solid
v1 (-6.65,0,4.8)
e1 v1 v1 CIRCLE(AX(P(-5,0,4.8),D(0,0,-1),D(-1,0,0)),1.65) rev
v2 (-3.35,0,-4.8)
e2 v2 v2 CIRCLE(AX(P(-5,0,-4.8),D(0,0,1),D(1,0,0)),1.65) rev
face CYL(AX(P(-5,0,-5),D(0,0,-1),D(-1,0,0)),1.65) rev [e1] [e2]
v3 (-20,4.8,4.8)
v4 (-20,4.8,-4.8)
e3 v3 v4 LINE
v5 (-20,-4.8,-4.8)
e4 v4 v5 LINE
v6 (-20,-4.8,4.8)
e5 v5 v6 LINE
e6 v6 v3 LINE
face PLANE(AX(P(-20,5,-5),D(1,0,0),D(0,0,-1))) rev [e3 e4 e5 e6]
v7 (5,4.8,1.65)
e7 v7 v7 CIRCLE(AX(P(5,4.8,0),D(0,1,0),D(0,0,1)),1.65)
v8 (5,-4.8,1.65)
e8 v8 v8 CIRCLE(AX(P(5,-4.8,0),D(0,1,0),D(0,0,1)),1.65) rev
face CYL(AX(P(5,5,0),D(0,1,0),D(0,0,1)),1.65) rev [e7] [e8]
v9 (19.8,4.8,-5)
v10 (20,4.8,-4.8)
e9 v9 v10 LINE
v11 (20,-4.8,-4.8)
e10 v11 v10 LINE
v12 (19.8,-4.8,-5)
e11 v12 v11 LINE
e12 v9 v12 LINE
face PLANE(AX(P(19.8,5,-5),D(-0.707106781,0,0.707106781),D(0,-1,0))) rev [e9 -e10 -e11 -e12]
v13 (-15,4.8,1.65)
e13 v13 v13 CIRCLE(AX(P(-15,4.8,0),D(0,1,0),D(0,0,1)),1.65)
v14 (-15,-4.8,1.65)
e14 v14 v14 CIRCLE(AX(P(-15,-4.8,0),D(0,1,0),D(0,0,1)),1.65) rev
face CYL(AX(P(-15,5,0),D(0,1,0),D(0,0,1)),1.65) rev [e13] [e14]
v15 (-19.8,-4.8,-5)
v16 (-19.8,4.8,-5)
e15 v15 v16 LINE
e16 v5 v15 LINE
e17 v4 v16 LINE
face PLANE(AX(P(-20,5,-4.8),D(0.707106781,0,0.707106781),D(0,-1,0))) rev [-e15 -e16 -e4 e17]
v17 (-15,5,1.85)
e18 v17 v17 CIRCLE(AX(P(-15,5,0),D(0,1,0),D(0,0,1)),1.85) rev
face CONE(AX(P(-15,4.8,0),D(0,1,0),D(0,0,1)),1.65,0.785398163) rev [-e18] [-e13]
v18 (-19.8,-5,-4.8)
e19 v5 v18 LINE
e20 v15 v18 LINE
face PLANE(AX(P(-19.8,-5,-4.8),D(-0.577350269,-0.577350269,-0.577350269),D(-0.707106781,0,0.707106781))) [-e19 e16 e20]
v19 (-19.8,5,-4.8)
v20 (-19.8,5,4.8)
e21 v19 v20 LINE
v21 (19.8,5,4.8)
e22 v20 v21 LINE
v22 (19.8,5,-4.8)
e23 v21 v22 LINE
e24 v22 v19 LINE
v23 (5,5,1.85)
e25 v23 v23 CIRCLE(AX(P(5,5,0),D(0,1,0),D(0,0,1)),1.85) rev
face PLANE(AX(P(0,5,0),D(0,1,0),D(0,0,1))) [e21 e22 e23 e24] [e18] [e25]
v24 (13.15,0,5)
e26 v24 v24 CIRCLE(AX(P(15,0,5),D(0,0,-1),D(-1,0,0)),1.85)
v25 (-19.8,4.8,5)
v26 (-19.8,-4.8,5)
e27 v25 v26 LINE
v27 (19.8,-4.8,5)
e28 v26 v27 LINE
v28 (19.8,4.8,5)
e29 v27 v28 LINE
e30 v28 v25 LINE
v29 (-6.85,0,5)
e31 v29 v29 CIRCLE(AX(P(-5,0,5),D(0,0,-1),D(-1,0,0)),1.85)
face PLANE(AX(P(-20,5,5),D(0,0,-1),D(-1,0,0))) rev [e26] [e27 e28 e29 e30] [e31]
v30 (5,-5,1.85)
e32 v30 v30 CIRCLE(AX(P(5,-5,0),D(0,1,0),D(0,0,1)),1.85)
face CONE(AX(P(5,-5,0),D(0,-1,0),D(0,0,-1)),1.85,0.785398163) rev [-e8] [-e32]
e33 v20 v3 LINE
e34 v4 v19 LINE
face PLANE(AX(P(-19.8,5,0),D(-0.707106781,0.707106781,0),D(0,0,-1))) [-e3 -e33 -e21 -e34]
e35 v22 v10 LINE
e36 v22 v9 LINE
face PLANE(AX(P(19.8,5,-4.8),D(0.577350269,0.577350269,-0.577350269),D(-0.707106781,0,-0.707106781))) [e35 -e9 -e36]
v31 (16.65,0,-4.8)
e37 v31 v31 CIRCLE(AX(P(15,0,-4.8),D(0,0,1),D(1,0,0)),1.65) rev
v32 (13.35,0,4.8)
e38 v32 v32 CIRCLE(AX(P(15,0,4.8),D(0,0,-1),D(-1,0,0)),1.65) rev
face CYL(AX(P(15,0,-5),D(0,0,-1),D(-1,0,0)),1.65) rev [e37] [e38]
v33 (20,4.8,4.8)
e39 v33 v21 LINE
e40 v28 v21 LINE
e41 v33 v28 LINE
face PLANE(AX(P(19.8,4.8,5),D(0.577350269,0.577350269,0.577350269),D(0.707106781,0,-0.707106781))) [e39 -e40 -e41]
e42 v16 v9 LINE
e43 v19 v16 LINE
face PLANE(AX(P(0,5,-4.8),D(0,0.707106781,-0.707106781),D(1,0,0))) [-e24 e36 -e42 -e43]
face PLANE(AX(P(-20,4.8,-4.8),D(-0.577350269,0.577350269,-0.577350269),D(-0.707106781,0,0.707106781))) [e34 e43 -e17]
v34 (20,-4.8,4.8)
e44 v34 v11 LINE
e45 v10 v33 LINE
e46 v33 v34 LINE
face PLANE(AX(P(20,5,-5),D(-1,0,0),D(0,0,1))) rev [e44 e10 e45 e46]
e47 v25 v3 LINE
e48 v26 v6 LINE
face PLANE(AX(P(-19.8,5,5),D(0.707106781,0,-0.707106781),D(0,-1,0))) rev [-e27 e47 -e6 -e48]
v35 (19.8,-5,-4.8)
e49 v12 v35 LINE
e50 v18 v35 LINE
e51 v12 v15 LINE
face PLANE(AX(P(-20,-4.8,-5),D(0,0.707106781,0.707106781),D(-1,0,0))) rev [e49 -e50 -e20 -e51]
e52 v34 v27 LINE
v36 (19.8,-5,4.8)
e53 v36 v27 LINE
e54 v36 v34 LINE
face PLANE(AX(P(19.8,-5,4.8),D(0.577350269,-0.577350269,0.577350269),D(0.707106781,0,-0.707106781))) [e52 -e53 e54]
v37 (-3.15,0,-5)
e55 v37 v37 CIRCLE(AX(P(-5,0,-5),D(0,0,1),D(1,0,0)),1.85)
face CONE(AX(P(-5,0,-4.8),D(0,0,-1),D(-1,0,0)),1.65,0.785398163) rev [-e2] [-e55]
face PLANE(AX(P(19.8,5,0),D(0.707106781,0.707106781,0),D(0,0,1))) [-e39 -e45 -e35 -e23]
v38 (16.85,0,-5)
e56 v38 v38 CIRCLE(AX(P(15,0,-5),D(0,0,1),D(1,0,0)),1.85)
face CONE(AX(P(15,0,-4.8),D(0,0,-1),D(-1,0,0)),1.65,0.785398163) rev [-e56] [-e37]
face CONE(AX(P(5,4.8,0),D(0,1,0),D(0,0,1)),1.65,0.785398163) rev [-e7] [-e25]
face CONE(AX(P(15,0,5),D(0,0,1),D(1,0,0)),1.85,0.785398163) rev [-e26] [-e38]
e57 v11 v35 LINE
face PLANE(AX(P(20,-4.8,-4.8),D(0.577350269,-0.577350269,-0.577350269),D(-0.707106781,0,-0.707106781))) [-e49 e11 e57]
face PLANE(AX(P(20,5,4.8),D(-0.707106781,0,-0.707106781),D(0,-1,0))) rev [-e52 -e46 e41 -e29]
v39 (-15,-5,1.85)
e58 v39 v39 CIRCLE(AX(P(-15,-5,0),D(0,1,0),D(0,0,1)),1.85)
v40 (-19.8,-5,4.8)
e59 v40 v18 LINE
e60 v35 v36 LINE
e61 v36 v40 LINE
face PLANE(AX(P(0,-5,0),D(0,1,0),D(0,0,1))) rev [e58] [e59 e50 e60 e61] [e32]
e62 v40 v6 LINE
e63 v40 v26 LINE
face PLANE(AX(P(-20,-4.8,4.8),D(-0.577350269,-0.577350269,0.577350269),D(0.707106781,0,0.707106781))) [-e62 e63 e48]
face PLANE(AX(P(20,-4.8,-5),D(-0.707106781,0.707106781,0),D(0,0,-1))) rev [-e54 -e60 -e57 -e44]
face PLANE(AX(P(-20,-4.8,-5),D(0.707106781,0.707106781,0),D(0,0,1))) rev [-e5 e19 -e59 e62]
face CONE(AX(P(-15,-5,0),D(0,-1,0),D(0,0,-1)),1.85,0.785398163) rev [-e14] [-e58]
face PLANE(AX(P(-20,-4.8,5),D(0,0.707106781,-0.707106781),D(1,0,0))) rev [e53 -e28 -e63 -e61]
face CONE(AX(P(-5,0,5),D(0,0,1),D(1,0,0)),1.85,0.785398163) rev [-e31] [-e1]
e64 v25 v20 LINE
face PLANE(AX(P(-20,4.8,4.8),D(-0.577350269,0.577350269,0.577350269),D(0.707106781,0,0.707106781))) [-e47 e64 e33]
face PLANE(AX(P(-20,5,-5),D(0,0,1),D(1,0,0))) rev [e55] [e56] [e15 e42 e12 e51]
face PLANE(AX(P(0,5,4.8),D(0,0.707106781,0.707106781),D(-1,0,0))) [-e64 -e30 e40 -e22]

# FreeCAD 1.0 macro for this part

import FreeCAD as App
import Part
import Sketcher

V = App.Vector


def add_polygon(sketch, points):
    """Adds a closed chain of lines whose ends are joined by coincident constraints."""
    first, n = sketch.GeometryCount, len(points)
    for a, b in zip(points, points[1:] + points[:1]):
        sketch.addGeometry(Part.LineSegment(App.Vector(*a, 0), App.Vector(*b, 0)), False)
    for i in range(n):
        sketch.addConstraint(Sketcher.Constraint("Coincident", first + i, 2, first + (i + 1) % n, 1))

doc = App.newDocument("Part")
body = doc.addObject("PartDesign::Body", "Body")

sketch1 = doc.addObject("Sketcher::SketchObject", "Sketch")
body.addObject(sketch1)
sketch1.AttachmentSupport = (doc.XZ_Plane, [""])
sketch1.MapMode = "FlatFace"
add_polygon(sketch1, [(-20, -5), (-20, 5), (20, 5), (20, -5)])
sketch1.addConstraint([
    Sketcher.Constraint("Vertical", 0),
    Sketcher.Constraint("Horizontal", 1),
    Sketcher.Constraint("Vertical", 2),
    Sketcher.Constraint("Horizontal", 3),
    Sketcher.Constraint("Symmetric", 0, 2, 2, 2, -1, 1),
    Sketcher.Constraint("DistanceX", 1, 1, 1, 2, 40.0),
    Sketcher.Constraint("DistanceY", 0, 1, 0, 2, 10.0),
])
pad1 = doc.addObject("PartDesign::Pad", "Pad")
body.addObject(pad1)
pad1.Profile = sketch1
pad1.Length = 10
pad1.Midplane = True

sketch2 = doc.addObject("Sketcher::SketchObject", "Sketch001")
body.addObject(sketch2)
sketch2.AttachmentSupport = (doc.XZ_Plane, [""])
sketch2.MapMode = "FlatFace"
sketch2.AttachmentOffset = App.Placement(V(0, 0, -5), App.Rotation())
sketch2.addGeometry([
    Part.Circle(V(-15, 0, 0), V(0, 0, 1), 1.6),
    Part.Circle(V(5, 0, 0), V(0, 0, 1), 1.6),
], False)
sketch2.addConstraint([
    Sketcher.Constraint("Equal", 0, 1),
    Sketcher.Constraint("PointOnObject", 0, 3, -1),
    Sketcher.Constraint("PointOnObject", 1, 3, -1),
    Sketcher.Constraint("Diameter", 0, 3.3),
    Sketcher.Constraint("DistanceX", 0, 3, -1, 1, 15.0),
    Sketcher.Constraint("DistanceX", -1, 1, 1, 3, 5.0),
])
doc.recompute()
hole = doc.addObject("PartDesign::Hole", "Hole")
body.addObject(hole)
hole.Profile = sketch2
hole.ThreadType = "None"
hole.Diameter = 3.3
hole.DepthType = "ThroughAll"
hole.Reversed = True

sketch3 = doc.addObject("Sketcher::SketchObject", "Sketch002")
body.addObject(sketch3)
sketch3.AttachmentSupport = (doc.XY_Plane, [""])
sketch3.MapMode = "FlatFace"
sketch3.AttachmentOffset = App.Placement(V(0, 0, -5), App.Rotation())
sketch3.addGeometry([
    Part.Circle(V(15, 0, 0), V(0, 0, 1), 1.6),
    Part.Circle(V(-5, 0, 0), V(0, 0, 1), 1.6),
], False)
sketch3.addConstraint([
    Sketcher.Constraint("Equal", 0, 1),
    Sketcher.Constraint("PointOnObject", 0, 3, -1),
    Sketcher.Constraint("PointOnObject", 1, 3, -1),
    Sketcher.Constraint("Diameter", 0, 3.3),
    Sketcher.Constraint("DistanceX", -1, 1, 0, 3, 15.0),
    Sketcher.Constraint("DistanceX", 1, 3, -1, 1, 5.0),
])
doc.recompute()
hole2 = doc.addObject("PartDesign::Hole", "Hole001")
body.addObject(hole2)
hole2.Profile = sketch3
hole2.ThreadType = "None"
hole2.Diameter = 3.3
hole2.DepthType = "ThroughAll"
hole2.Reversed = True
doc.recompute()

chamfer = doc.addObject("PartDesign::Chamfer", "Chamfer")
body.addObject(chamfer)
chamfer.Base = (hole2, ["Edge1"])
chamfer.UseAllEdges = True
chamfer.Size = 0.2

doc.recompute()
